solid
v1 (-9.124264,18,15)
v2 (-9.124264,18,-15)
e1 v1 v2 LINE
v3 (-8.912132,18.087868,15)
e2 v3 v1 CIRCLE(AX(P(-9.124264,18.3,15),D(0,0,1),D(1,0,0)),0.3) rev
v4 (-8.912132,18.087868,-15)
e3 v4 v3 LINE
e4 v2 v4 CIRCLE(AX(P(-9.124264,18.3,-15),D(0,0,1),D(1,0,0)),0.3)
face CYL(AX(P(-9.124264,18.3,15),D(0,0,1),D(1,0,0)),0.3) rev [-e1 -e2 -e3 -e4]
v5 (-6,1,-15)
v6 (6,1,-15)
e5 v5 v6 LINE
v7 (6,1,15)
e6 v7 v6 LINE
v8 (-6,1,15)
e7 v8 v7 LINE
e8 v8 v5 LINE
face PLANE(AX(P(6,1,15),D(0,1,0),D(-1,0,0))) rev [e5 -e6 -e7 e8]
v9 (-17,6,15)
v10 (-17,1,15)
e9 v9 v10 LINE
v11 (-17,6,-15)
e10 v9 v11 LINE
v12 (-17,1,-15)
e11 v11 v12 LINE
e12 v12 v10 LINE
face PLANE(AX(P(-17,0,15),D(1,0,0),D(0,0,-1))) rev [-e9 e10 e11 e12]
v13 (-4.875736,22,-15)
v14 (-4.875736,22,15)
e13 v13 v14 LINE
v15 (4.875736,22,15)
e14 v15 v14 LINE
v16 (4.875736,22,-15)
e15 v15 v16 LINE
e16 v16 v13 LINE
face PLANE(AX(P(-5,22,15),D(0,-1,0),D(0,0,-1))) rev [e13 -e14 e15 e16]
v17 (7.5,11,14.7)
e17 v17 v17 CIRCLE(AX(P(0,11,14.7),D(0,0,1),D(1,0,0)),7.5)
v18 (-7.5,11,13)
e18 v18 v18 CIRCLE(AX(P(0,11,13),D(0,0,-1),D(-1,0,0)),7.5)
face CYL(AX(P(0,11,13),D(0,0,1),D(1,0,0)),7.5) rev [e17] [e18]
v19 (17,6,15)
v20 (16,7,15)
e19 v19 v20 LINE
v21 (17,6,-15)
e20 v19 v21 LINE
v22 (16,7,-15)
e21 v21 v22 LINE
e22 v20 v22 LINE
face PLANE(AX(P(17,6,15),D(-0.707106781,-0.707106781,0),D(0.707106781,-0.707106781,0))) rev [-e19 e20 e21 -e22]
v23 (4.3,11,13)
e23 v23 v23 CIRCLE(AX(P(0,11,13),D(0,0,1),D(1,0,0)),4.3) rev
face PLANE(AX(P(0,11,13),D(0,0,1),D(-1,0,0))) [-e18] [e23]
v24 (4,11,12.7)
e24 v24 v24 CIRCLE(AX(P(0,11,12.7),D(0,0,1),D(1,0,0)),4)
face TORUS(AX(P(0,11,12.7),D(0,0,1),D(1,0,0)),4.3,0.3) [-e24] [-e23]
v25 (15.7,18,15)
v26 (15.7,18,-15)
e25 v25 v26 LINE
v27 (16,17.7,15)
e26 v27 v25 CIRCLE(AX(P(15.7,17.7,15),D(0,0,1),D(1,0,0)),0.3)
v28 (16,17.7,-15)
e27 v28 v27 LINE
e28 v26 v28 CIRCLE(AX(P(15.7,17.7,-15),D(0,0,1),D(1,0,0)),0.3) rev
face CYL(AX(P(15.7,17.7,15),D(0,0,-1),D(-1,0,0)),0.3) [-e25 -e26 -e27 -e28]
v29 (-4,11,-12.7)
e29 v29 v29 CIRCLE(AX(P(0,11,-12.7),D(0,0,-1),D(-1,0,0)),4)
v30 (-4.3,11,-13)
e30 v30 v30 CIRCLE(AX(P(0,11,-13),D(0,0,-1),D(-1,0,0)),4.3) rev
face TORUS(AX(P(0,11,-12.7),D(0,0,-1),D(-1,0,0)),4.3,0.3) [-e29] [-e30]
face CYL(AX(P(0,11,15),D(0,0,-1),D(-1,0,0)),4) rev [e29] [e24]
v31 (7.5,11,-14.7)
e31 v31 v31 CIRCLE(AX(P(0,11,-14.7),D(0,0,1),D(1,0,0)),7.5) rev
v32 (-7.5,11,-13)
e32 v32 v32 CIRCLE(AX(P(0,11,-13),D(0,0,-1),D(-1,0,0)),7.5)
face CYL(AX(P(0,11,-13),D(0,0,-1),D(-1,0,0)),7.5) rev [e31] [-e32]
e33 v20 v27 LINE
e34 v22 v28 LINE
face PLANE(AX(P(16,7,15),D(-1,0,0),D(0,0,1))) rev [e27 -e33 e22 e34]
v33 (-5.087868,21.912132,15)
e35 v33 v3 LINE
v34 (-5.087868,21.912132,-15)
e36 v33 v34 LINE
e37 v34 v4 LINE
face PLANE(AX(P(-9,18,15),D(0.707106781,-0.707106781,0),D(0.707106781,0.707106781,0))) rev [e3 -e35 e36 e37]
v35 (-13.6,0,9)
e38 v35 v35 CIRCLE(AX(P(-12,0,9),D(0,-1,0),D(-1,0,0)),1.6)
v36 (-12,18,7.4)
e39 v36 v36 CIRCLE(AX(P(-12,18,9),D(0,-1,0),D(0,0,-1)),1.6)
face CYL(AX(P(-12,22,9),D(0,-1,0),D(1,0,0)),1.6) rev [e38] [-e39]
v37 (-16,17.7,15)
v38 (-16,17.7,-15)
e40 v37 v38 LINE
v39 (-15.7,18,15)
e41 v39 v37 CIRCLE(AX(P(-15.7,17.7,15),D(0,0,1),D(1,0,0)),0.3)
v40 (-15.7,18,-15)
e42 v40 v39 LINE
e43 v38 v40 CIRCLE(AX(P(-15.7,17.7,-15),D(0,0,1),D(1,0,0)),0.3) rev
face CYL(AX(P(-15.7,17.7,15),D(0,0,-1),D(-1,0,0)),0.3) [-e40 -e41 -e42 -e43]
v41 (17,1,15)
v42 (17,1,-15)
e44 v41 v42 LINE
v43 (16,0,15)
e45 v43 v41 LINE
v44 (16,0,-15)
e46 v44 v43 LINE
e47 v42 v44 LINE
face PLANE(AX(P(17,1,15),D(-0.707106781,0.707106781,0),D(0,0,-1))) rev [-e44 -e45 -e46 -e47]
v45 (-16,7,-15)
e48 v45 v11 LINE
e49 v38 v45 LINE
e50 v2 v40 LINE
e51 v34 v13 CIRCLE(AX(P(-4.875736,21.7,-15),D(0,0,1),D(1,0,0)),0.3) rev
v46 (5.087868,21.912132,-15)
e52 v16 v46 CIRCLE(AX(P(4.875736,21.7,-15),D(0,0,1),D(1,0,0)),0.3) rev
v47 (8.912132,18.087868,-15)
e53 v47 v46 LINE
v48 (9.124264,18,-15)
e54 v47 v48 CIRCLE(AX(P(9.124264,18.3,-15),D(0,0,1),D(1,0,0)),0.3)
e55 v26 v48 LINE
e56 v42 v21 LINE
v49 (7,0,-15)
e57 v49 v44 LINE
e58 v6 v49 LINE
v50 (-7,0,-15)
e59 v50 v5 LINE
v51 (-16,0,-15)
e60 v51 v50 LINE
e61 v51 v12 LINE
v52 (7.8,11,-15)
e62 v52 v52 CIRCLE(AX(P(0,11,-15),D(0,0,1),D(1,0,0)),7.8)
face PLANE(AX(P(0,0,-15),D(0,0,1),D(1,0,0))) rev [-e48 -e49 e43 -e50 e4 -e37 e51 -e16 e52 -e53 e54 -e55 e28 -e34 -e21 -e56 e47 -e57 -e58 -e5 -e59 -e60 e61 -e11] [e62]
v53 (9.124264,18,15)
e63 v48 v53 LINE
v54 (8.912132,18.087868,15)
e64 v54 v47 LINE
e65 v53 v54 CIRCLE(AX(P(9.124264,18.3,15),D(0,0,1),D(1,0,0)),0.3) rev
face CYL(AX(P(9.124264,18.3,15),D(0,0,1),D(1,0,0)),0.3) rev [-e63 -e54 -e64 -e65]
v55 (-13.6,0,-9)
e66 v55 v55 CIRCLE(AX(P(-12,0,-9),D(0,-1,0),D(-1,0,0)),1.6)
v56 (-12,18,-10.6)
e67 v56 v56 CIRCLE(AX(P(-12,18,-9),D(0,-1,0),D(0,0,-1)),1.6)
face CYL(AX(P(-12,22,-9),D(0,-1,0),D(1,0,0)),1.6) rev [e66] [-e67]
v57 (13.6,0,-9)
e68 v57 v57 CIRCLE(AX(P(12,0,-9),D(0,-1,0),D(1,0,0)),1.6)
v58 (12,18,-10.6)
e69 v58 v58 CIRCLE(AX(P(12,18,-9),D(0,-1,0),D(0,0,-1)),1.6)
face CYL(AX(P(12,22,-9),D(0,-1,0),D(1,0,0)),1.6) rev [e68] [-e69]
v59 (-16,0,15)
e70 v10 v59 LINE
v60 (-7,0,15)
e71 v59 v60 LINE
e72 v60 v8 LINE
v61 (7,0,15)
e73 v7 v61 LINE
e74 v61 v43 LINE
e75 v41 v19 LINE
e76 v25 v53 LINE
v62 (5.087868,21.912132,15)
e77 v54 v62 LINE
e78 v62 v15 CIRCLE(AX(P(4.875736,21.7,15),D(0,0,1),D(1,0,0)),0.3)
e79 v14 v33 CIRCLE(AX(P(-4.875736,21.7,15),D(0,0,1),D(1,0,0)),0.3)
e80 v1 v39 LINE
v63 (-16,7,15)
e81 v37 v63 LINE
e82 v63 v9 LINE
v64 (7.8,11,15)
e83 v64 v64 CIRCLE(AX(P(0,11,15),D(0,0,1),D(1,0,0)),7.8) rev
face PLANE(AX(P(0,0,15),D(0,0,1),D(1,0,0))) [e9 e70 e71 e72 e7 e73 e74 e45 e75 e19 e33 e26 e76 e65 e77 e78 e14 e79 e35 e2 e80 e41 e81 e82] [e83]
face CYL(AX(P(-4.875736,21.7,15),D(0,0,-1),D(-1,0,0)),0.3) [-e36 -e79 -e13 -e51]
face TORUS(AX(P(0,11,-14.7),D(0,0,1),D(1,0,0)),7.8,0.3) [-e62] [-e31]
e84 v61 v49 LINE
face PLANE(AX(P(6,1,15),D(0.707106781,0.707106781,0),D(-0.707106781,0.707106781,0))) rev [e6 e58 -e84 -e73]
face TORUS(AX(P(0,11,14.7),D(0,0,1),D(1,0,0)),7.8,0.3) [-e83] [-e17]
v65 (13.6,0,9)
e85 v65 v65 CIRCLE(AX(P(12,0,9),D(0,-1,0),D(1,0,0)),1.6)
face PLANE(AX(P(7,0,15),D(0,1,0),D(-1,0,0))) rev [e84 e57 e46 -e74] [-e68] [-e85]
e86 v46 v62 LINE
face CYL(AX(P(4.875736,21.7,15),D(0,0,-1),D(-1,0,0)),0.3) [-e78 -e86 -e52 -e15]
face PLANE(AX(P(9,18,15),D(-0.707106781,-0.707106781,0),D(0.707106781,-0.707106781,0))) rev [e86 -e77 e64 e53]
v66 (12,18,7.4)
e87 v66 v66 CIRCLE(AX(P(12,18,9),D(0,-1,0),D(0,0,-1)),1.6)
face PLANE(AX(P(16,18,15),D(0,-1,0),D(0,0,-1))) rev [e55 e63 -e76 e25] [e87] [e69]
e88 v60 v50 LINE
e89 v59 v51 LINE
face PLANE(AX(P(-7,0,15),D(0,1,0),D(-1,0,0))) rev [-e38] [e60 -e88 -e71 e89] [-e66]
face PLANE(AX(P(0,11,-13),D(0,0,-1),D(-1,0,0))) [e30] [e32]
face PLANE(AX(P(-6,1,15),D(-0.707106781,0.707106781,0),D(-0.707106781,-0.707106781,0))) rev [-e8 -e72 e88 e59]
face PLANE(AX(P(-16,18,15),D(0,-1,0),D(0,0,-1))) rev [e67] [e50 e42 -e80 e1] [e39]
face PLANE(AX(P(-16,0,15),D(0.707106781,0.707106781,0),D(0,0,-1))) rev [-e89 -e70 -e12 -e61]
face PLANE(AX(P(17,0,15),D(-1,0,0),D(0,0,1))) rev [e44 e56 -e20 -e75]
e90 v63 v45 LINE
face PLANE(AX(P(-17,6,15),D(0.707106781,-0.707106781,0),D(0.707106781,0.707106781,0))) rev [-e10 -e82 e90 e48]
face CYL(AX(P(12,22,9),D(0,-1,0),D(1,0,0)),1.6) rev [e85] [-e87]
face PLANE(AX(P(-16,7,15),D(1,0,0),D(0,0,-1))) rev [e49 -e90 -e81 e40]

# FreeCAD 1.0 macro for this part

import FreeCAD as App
import Part
import Sketcher
Q = App.Units.Quantity


def edges_at(feature, points):
    """Names of the edges that pass closest to the given points."""
    edges = feature.Shape.Edges
    near = lambda p: min(range(len(edges)), key=lambda i: edges[i].distToShape(Part.Vertex(*p))[0])
    return sorted({f"Edge{near(p) + 1}" for p in points})

doc = App.newDocument("Part")
body = doc.addObject("PartDesign::Body", "Body")

# Sketch on XY plane
sketch1 = body.newObject("Sketcher::SketchObject", "Sketch")
sketch1.AttachmentSupport = (doc.getObject("XY_Plane"), [""])
sketch1.MapMode = "FlatFace"
sketch1.addGeometry([
    Part.LineSegment(App.Vector(-6, 1, 0), App.Vector(6, 1, 0)),  # 0
    Part.LineSegment(App.Vector(6, 1, 0), App.Vector(7, 0, 0)),  # 1
    Part.LineSegment(App.Vector(7, 0, 0), App.Vector(17, 0, 0)),  # 2
    Part.LineSegment(App.Vector(17, 0, 0), App.Vector(17, 6, 0)),  # 3
    Part.LineSegment(App.Vector(17, 6, 0), App.Vector(16, 7, 0)),  # 4
    Part.LineSegment(App.Vector(16, 7, 0), App.Vector(16, 18, 0)),  # 5
    Part.LineSegment(App.Vector(16, 18, 0), App.Vector(9, 18, 0)),  # 6
    Part.LineSegment(App.Vector(9, 18, 0), App.Vector(5, 22, 0)),  # 7
    Part.LineSegment(App.Vector(5, 22, 0), App.Vector(-5, 22, 0)),  # 8
    Part.LineSegment(App.Vector(-5, 22, 0), App.Vector(-9, 18, 0)),  # 9
    Part.LineSegment(App.Vector(-9, 18, 0), App.Vector(-16, 18, 0)),  # 10
    Part.LineSegment(App.Vector(-16, 18, 0), App.Vector(-16, 7, 0)),  # 11
    Part.LineSegment(App.Vector(-16, 7, 0), App.Vector(-17, 6, 0)),  # 12
    Part.LineSegment(App.Vector(-17, 6, 0), App.Vector(-17, 0, 0)),  # 13
    Part.LineSegment(App.Vector(-17, 0, 0), App.Vector(-7, 0, 0)),  # 14
    Part.LineSegment(App.Vector(-7, 0, 0), App.Vector(-6, 1, 0)),  # 15
    Part.Circle(App.Vector(0, 11, 0), App.Vector(0, 0, 1), 4),  # 16
], False)
sketch1.addConstraint([
    Sketcher.Constraint("Coincident", 0, 2, 1, 1),
    Sketcher.Constraint("Coincident", 1, 2, 2, 1),
    Sketcher.Constraint("Coincident", 2, 2, 3, 1),
    Sketcher.Constraint("Coincident", 3, 2, 4, 1),
    Sketcher.Constraint("Coincident", 4, 2, 5, 1),
    Sketcher.Constraint("Coincident", 5, 2, 6, 1),
    Sketcher.Constraint("Coincident", 6, 2, 7, 1),
    Sketcher.Constraint("Coincident", 7, 2, 8, 1),
    Sketcher.Constraint("Coincident", 8, 2, 9, 1),
    Sketcher.Constraint("Coincident", 9, 2, 10, 1),
    Sketcher.Constraint("Coincident", 10, 2, 11, 1),
    Sketcher.Constraint("Coincident", 11, 2, 12, 1),
    Sketcher.Constraint("Coincident", 12, 2, 13, 1),
    Sketcher.Constraint("Coincident", 13, 2, 14, 1),
    Sketcher.Constraint("Coincident", 14, 2, 15, 1),
    Sketcher.Constraint("Coincident", 15, 2, 0, 1),
    Sketcher.Constraint("Horizontal", 0),
    Sketcher.Constraint("Horizontal", 2),
    Sketcher.Constraint("Vertical", 3),
    Sketcher.Constraint("Vertical", 5),
    Sketcher.Constraint("Horizontal", 6),
    Sketcher.Constraint("Horizontal", 8),
    Sketcher.Constraint("Horizontal", 10),
    Sketcher.Constraint("Vertical", 11),
    Sketcher.Constraint("Vertical", 13),
    Sketcher.Constraint("Horizontal", 14),
    Sketcher.Constraint("Symmetric", 2, 2, 13, 2, -1, 1),
    Sketcher.Constraint("Symmetric", 6, 2, 9, 2, -2),
    Sketcher.Constraint("Symmetric", 4, 2, 11, 2, -2),
    Sketcher.Constraint("Symmetric", 1, 2, 14, 2, -2),
    Sketcher.Constraint("PointOnObject", 16, 3, -2),
    Sketcher.Constraint("Parallel", 1, 4),
    Sketcher.Constraint("Parallel", 4, 7),
    Sketcher.Constraint("Perpendicular", 7, 9),
    Sketcher.Constraint("Parallel", 9, 12),
    Sketcher.Constraint("Parallel", 12, 15),
    Sketcher.Constraint("Horizontal", 3, 2, 12, 2),
    Sketcher.Constraint("Equal", 2, 8),
    Sketcher.Constraint("Equal", 1, 4),
    Sketcher.Constraint("Diameter", 16, Q("8 mm")),
    Sketcher.Constraint("DistanceX", 0, 1, 0, 2, Q("12 mm")),
    Sketcher.Constraint("DistanceX", 2, 1, 2, 2, Q("10 mm")),
    Sketcher.Constraint("DistanceX", 6, 2, 6, 1, Q("7 mm")),
    Sketcher.Constraint("DistanceY", 3, 1, 3, 2, Q("6 mm")),
    Sketcher.Constraint("DistanceY", 5, 1, 5, 2, Q("11 mm")),
    Sketcher.Constraint("DistanceY", -1, 1, 16, 3, Q("11 mm")),
    Sketcher.Constraint("DistanceY", -1, 1, 0, 2, Q("1 mm")),
])
pad1 = body.newObject("PartDesign::Pad", "Pad")
pad1.Profile = sketch1
pad1.Length = 30
pad1.Midplane = True

# Sketch on XY plane
sketch2 = body.newObject("Sketcher::SketchObject", "Sketch001")
sketch2.AttachmentSupport = (doc.getObject("XY_Plane"), [""])
sketch2.MapMode = "FlatFace"
sketch2.AttachmentOffset = App.Placement(App.Vector(0, 0, -15), App.Rotation())
sketch2.addGeometry(Part.Circle(App.Vector(0, 11, 0), App.Vector(0, 0, 1), 8), False)
sketch2.addConstraint([
    Sketcher.Constraint("PointOnObject", 0, 3, -2),
    Sketcher.Constraint("Diameter", 0, Q("15 mm")),
    Sketcher.Constraint("DistanceY", -1, 1, 0, 3, Q("11 mm")),
])
pocket1 = body.newObject("PartDesign::Pocket", "Pocket")
pocket1.Profile = sketch2
pocket1.Length = 2
pocket1.Reversed = True
doc.recompute()

mirrored = body.newObject("PartDesign::Mirrored", "Mirrored")
mirrored.Originals = [pocket1]
mirrored.MirrorPlane = (doc.getObject("XY_Plane"), [""])
body.Tip = mirrored

# Sketch on XZ plane
sketch3 = body.newObject("Sketcher::SketchObject", "Sketch002")
sketch3.AttachmentSupport = (doc.getObject("XZ_Plane"), [""])
sketch3.MapMode = "FlatFace"
sketch3.addGeometry([
    Part.Circle(App.Vector(12, -9, 0), App.Vector(0, 0, 1), 1.6),
    Part.Circle(App.Vector(-12, -9, 0), App.Vector(0, 0, 1), 1.6),
    Part.Circle(App.Vector(12, 9, 0), App.Vector(0, 0, 1), 1.6),
    Part.Circle(App.Vector(-12, 9, 0), App.Vector(0, 0, 1), 1.6),
], False)
sketch3.addConstraint([
    Sketcher.Constraint("Equal", 0, 1),
    Sketcher.Constraint("Equal", 1, 2),
    Sketcher.Constraint("Equal", 2, 3),
    Sketcher.Constraint("Symmetric", 1, 3, 2, 3, -1, 1),
    Sketcher.Constraint("Symmetric", 0, 3, 3, 3, -1, 1),
    Sketcher.Constraint("Symmetric", 0, 3, 1, 3, -2),
    Sketcher.Constraint("Diameter", 0, Q("3.2 mm")),
    Sketcher.Constraint("DistanceX", -1, 1, 0, 3, Q("12 mm")),
    Sketcher.Constraint("DistanceY", 0, 3, -1, 1, Q("9 mm")),
])
pocket2 = body.newObject("PartDesign::Pocket", "Pocket001")
pocket2.Profile = sketch3
pocket2.Type = "ThroughAll"
doc.recompute()

chamfer = body.newObject("PartDesign::Chamfer", "Chamfer")
chamfer.Base = (pocket2, edges_at(pocket2, [(-17, 0, 0), (17, 0, 0)]))
chamfer.Size = 1
doc.recompute()

fillet = body.newObject("PartDesign::Fillet", "Fillet")
fillet.Base = (chamfer, edges_at(chamfer, [
    (-16, 18, 0),
    (-9, 18, 0),
    (-5, 22, 0),
    (5, 22, 0),
    (9, 18, 0),
    (16, 18, 0),
    (-4, 11, -13),
    (7.5, 11, -15),
    (7.5, 11, 15),
    (-4, 11, 13),
]))
fillet.Radius = 0.3

doc.recompute()
